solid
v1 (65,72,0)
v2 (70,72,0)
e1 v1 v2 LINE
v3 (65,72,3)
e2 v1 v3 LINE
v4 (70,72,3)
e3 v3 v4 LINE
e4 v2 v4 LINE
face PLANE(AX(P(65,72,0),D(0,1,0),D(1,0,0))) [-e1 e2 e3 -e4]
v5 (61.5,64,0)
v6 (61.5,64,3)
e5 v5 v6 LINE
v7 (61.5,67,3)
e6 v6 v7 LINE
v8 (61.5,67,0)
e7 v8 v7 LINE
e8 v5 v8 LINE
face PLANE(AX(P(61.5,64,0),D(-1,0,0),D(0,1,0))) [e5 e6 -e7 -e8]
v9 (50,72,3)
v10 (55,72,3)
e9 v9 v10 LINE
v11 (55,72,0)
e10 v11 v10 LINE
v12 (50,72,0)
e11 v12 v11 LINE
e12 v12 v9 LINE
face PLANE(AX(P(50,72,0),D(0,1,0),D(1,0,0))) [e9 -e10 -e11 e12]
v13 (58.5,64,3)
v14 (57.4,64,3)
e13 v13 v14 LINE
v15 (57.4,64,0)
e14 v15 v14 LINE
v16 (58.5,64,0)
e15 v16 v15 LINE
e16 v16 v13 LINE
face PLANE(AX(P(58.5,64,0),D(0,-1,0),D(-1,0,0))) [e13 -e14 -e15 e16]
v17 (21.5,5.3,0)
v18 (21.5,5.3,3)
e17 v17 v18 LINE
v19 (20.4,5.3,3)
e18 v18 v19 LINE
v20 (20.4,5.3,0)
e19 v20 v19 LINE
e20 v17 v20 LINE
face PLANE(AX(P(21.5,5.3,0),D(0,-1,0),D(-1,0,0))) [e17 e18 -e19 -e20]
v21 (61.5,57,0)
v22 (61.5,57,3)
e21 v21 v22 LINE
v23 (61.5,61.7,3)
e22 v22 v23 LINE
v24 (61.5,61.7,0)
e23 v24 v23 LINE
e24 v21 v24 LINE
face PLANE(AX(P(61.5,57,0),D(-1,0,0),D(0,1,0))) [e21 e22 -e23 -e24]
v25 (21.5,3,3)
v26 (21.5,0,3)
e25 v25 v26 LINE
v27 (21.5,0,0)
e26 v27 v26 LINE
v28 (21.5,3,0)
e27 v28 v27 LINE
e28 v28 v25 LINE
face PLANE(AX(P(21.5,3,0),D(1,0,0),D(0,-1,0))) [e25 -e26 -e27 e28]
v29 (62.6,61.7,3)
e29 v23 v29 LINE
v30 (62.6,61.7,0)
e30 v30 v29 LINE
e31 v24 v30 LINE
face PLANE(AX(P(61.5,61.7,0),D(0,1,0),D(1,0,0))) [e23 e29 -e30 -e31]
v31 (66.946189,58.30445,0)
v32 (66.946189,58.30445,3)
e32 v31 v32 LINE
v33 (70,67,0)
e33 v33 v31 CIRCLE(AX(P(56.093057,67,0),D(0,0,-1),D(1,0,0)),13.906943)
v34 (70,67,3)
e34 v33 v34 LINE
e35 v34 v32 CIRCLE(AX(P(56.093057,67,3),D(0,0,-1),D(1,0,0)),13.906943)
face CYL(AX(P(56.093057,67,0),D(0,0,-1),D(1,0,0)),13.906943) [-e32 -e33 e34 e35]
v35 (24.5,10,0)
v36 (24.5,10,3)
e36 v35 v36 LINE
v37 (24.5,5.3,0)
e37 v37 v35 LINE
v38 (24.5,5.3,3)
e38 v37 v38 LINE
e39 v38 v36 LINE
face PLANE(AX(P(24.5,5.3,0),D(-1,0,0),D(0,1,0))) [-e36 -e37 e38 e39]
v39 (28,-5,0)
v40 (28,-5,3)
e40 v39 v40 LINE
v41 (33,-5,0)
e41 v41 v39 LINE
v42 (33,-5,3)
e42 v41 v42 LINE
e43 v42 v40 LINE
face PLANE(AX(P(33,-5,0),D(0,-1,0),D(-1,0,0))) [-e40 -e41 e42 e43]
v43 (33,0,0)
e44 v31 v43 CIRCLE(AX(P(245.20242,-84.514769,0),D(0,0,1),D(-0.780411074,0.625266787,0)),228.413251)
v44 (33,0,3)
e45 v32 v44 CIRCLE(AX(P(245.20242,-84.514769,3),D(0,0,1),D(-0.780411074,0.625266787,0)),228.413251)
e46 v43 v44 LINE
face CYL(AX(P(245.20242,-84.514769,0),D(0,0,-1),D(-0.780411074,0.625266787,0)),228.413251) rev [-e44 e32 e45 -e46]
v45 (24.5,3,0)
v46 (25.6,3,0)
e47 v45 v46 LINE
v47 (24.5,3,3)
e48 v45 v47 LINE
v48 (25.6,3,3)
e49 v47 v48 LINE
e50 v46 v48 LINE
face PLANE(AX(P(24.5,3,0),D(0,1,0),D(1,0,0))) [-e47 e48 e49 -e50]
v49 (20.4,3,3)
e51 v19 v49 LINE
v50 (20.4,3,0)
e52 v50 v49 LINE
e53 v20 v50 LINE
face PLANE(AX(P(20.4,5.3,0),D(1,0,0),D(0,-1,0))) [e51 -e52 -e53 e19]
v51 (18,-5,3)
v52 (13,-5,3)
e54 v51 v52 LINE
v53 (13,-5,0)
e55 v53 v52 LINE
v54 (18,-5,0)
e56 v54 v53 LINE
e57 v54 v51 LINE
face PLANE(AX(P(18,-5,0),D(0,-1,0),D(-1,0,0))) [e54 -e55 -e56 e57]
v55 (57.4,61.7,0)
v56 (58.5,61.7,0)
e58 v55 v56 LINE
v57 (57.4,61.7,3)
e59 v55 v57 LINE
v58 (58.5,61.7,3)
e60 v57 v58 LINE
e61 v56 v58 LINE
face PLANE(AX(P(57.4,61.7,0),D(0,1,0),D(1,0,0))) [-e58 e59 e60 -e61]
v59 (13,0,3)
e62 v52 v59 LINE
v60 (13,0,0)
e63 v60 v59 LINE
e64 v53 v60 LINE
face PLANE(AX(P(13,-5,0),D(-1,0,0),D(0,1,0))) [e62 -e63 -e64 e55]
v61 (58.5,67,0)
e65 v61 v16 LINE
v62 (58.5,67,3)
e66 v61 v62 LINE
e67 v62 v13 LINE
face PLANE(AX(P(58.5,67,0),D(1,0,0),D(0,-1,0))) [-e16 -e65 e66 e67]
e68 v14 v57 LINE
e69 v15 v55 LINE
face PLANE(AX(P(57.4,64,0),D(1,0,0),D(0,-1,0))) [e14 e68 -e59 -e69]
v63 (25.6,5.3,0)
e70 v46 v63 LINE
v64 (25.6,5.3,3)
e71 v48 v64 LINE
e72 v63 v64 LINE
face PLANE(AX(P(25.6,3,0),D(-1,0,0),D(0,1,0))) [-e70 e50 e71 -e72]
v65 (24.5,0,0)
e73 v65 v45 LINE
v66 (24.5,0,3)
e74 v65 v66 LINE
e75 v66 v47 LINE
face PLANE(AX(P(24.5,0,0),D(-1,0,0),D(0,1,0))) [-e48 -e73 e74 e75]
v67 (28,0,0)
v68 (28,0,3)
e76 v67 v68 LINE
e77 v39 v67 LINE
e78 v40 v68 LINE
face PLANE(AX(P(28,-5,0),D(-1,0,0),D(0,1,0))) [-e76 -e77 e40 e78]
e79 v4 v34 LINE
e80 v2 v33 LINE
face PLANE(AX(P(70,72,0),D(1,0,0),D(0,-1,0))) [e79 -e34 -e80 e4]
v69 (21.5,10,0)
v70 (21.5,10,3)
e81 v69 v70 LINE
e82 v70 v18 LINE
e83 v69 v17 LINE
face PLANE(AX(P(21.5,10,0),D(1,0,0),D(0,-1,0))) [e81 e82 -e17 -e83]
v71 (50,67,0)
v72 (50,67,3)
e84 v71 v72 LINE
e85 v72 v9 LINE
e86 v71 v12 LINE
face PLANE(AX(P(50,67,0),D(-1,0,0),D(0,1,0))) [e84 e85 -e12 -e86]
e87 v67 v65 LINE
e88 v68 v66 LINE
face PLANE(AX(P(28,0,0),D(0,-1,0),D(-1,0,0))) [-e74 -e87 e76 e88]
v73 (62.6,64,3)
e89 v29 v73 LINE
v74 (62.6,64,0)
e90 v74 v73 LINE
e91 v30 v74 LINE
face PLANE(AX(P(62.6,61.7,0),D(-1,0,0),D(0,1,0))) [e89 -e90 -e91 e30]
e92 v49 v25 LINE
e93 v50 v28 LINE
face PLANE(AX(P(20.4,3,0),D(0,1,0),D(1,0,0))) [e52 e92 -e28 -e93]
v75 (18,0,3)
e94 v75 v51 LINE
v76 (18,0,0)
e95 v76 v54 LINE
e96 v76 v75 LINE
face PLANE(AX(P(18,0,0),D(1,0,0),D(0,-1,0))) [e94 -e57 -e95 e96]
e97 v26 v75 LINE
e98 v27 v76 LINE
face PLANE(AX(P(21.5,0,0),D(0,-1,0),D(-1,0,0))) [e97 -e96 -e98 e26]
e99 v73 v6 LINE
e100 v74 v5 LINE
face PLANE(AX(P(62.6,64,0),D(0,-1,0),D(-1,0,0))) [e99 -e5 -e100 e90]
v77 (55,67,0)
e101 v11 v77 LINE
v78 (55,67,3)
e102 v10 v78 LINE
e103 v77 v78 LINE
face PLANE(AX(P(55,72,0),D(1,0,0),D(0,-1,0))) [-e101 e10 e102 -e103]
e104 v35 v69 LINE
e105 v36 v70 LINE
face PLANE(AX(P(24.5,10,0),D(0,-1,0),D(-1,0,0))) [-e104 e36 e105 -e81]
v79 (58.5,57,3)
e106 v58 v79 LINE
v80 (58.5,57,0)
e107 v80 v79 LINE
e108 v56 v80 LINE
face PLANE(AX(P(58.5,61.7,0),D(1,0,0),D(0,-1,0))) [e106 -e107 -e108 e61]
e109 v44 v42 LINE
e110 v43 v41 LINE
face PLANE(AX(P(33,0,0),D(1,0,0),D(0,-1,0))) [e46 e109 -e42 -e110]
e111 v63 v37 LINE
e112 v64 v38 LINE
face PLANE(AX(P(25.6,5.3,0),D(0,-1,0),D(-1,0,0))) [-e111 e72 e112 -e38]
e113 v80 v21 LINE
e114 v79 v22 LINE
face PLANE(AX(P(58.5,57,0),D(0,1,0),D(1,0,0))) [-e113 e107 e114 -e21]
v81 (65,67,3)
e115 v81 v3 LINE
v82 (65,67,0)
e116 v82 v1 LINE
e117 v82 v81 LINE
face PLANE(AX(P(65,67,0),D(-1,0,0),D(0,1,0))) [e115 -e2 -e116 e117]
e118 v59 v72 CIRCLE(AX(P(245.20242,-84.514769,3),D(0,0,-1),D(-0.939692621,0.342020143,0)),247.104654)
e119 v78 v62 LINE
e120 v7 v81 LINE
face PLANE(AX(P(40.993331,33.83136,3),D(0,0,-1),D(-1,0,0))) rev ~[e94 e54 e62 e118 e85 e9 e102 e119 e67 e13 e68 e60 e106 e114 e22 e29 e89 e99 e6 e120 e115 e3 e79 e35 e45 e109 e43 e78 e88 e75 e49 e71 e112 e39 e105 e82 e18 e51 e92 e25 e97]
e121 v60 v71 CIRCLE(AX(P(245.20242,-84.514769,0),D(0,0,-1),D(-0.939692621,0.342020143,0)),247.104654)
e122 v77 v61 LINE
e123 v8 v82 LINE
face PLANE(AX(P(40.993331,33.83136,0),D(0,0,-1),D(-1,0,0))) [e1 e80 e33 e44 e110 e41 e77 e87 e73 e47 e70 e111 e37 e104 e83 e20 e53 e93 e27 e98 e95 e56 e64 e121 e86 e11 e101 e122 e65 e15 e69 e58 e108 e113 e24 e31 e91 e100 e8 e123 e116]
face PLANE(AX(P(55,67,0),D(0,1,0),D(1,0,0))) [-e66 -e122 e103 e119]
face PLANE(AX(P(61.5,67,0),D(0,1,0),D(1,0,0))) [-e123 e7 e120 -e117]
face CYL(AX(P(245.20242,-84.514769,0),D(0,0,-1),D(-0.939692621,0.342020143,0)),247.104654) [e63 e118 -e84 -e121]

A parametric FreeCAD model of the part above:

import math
import FreeCAD as App
import Part
import Sketcher

V = App.Vector
Q = App.Units.Quantity

doc = App.newDocument("Part")
body = doc.addObject("PartDesign::Body", "Body")

sketch1 = body.newObject("Sketcher::SketchObject", "Sketch")
sketch1.AttachmentSupport = (doc.getObject("XY_Plane"), [""])
sketch1.MapMode = "FlatFace"
sketch1.addGeometry([
    Part.LineSegment(V(65, 67, 0), V(61.5, 67, 0)),
    Part.LineSegment(V(61.5, 67, 0), V(61.5, 64, 0)),
    Part.LineSegment(V(61.5, 64, 0), V(62.6, 64, 0)),
    Part.LineSegment(V(62.6, 64, 0), V(62.6, 61.7, 0)),
    Part.LineSegment(V(62.6, 61.7, 0), V(61.5, 61.7, 0)),
    Part.LineSegment(V(61.5, 61.7, 0), V(61.5, 57, 0)),
    Part.LineSegment(V(61.5, 57, 0), V(58.5, 57, 0)),
    Part.LineSegment(V(58.5, 57, 0), V(58.5, 61.7, 0)),
    Part.LineSegment(V(58.5, 61.7, 0), V(57.4, 61.7, 0)),
    Part.LineSegment(V(57.4, 61.7, 0), V(57.4, 64, 0)),
    Part.LineSegment(V(57.4, 64, 0), V(58.5, 64, 0)),
    Part.LineSegment(V(58.5, 64, 0), V(58.5, 67, 0)),
    Part.LineSegment(V(58.5, 67, 0), V(55, 67, 0)),
    Part.LineSegment(V(55, 67, 0), V(55, 72, 0)),
    Part.LineSegment(V(55, 72, 0), V(50, 72, 0)),
    Part.LineSegment(V(50, 72, 0), V(50, 67, 0)),
    Part.ArcOfCircle(Part.Circle(V(245.2, -84.5, 0), V(0, 0, 1), 247.1), math.radians(142.18), math.radians(160)),
    Part.LineSegment(V(13, 0, 0), V(13, -5, 0)),
    Part.LineSegment(V(13, -5, 0), V(18, -5, 0)),
    Part.LineSegment(V(18, -5, 0), V(18, 0, 0)),
    Part.LineSegment(V(18, 0, 0), V(21.5, 0, 0)),
    Part.LineSegment(V(21.5, 0, 0), V(21.5, 3, 0)),
    Part.LineSegment(V(21.5, 3, 0), V(20.4, 3, 0)),
    Part.LineSegment(V(20.4, 3, 0), V(20.4, 5.3, 0)),
    Part.LineSegment(V(20.4, 5.3, 0), V(21.5, 5.3, 0)),
    Part.LineSegment(V(21.5, 5.3, 0), V(21.5, 10, 0)),
    Part.LineSegment(V(21.5, 10, 0), V(24.5, 10, 0)),
    Part.LineSegment(V(24.5, 10, 0), V(24.5, 5.3, 0)),
    Part.LineSegment(V(24.5, 5.3, 0), V(25.6, 5.3, 0)),
    Part.LineSegment(V(25.6, 5.3, 0), V(25.6, 3, 0)),
    Part.LineSegment(V(25.6, 3, 0), V(24.5, 3, 0)),
    Part.LineSegment(V(24.5, 3, 0), V(24.5, 0, 0)),
    Part.LineSegment(V(24.5, 0, 0), V(28, 0, 0)),
    Part.LineSegment(V(28, 0, 0), V(28, -5, 0)),
    Part.LineSegment(V(28, -5, 0), V(33, -5, 0)),
    Part.LineSegment(V(33, -5, 0), V(33, 0, 0)),
    Part.ArcOfCircle(Part.Circle(V(245.2, -84.5, 0), V(0, 0, 1), 228.4), math.radians(141.3), math.radians(158.28)),
    Part.ArcOfCircle(Part.Circle(V(56.1, 67, 0), V(0, 0, 1), 13.9), math.radians(-39), math.radians(0)),
    Part.LineSegment(V(70, 67, 0), V(70, 72, 0)),
    Part.LineSegment(V(70, 72, 0), V(65, 72, 0)),
    Part.LineSegment(V(65, 72, 0), V(65, 67, 0)),
], False)
sketch1.addConstraint([
    Sketcher.Constraint("Coincident", 0, 2, 1, 1),
    Sketcher.Constraint("Coincident", 1, 2, 2, 1),
    Sketcher.Constraint("Coincident", 2, 2, 3, 1),
    Sketcher.Constraint("Coincident", 3, 2, 4, 1),
    Sketcher.Constraint("Coincident", 4, 2, 5, 1),
    Sketcher.Constraint("Coincident", 5, 2, 6, 1),
    Sketcher.Constraint("Coincident", 6, 2, 7, 1),
    Sketcher.Constraint("Coincident", 7, 2, 8, 1),
    Sketcher.Constraint("Coincident", 8, 2, 9, 1),
    Sketcher.Constraint("Coincident", 9, 2, 10, 1),
    Sketcher.Constraint("Coincident", 10, 2, 11, 1),
    Sketcher.Constraint("Coincident", 11, 2, 12, 1),
    Sketcher.Constraint("Coincident", 12, 2, 13, 1),
    Sketcher.Constraint("Coincident", 13, 2, 14, 1),
    Sketcher.Constraint("Coincident", 14, 2, 15, 1),
    Sketcher.Constraint("Coincident", 15, 2, 16, 1),
    Sketcher.Constraint("Coincident", 16, 2, 17, 1),
    Sketcher.Constraint("Coincident", 17, 2, 18, 1),
    Sketcher.Constraint("Coincident", 18, 2, 19, 1),
    Sketcher.Constraint("Coincident", 19, 2, 20, 1),
    Sketcher.Constraint("Coincident", 20, 2, 21, 1),
    Sketcher.Constraint("Coincident", 21, 2, 22, 1),
    Sketcher.Constraint("Coincident", 22, 2, 23, 1),
    Sketcher.Constraint("Coincident", 23, 2, 24, 1),
    Sketcher.Constraint("Coincident", 24, 2, 25, 1),
    Sketcher.Constraint("Coincident", 25, 2, 26, 1),
    Sketcher.Constraint("Coincident", 26, 2, 27, 1),
    Sketcher.Constraint("Coincident", 27, 2, 28, 1),
    Sketcher.Constraint("Coincident", 28, 2, 29, 1),
    Sketcher.Constraint("Coincident", 29, 2, 30, 1),
    Sketcher.Constraint("Coincident", 30, 2, 31, 1),
    Sketcher.Constraint("Coincident", 31, 2, 32, 1),
    Sketcher.Constraint("Coincident", 32, 2, 33, 1),
    Sketcher.Constraint("Coincident", 33, 2, 34, 1),
    Sketcher.Constraint("Coincident", 34, 2, 35, 1),
    Sketcher.Constraint("Coincident", 35, 2, 36, 2),
    Sketcher.Constraint("Tangent", 36, 1, 37, 1),
    Sketcher.Constraint("Tangent", 37, 2, 38, 1),
    Sketcher.Constraint("Coincident", 38, 2, 39, 1),
    Sketcher.Constraint("Coincident", 39, 2, 40, 1),
    Sketcher.Constraint("Coincident", 40, 2, 0, 1),
    Sketcher.Constraint("Horizontal", 0),
    Sketcher.Constraint("Vertical", 1),
    Sketcher.Constraint("Horizontal", 2),
    Sketcher.Constraint("Vertical", 3),
    Sketcher.Constraint("Horizontal", 4),
    Sketcher.Constraint("Vertical", 5),
    Sketcher.Constraint("Horizontal", 6),
    Sketcher.Constraint("Vertical", 7),
    Sketcher.Constraint("Horizontal", 8),
    Sketcher.Constraint("Vertical", 9),
    Sketcher.Constraint("Horizontal", 10),
    Sketcher.Constraint("Vertical", 11),
    Sketcher.Constraint("Horizontal", 12),
    Sketcher.Constraint("Vertical", 13),
    Sketcher.Constraint("Horizontal", 14),
    Sketcher.Constraint("Vertical", 15),
    Sketcher.Constraint("Vertical", 17),
    Sketcher.Constraint("Horizontal", 18),
    Sketcher.Constraint("Vertical", 19),
    Sketcher.Constraint("Horizontal", 20),
    Sketcher.Constraint("Vertical", 21),
    Sketcher.Constraint("Horizontal", 22),
    Sketcher.Constraint("Vertical", 23),
    Sketcher.Constraint("Horizontal", 24),
    Sketcher.Constraint("Vertical", 25),
    Sketcher.Constraint("Horizontal", 26),
    Sketcher.Constraint("Vertical", 27),
    Sketcher.Constraint("Horizontal", 28),
    Sketcher.Constraint("Vertical", 29),
    Sketcher.Constraint("Horizontal", 30),
    Sketcher.Constraint("Vertical", 31),
    Sketcher.Constraint("Horizontal", 32),
    Sketcher.Constraint("Vertical", 33),
    Sketcher.Constraint("Horizontal", 34),
    Sketcher.Constraint("Vertical", 35),
    Sketcher.Constraint("Vertical", 38),
    Sketcher.Constraint("Horizontal", 39),
    Sketcher.Constraint("Vertical", 40),
    Sketcher.Constraint("Coincident", 36, 3, 16, 3),
    Sketcher.Constraint("PointOnObject", 16, 2, -1),
    Sketcher.Constraint("PointOnObject", 19, 2, -1),
    Sketcher.Constraint("PointOnObject", 31, 2, -1),
    Sketcher.Constraint("PointOnObject", 35, 2, -1),
    Sketcher.Constraint("Horizontal", 37, 3, 0, 2),
    Sketcher.Constraint("Horizontal", 4, 2, 7, 2),
    Sketcher.Constraint("Horizontal", 2, 2, 9, 2),
    Sketcher.Constraint("Horizontal", 0, 2, 11, 2),
    Sketcher.Constraint("Horizontal", 12, 2, 15, 2),
    Sketcher.Constraint("Horizontal", 24, 2, 27, 2),
    Sketcher.Constraint("Horizontal", 22, 2, 29, 2),
    Sketcher.Constraint("Horizontal", 18, 2, 33, 2),
    Sketcher.Constraint("Horizontal", 14, 2, 38, 2),
    Sketcher.Constraint("Vertical", 1, 2, 4, 2),
    Sketcher.Constraint("Vertical", 7, 2, 10, 2),
    Sketcher.Constraint("Vertical", 21, 2, 24, 2),
    Sketcher.Constraint("Vertical", 27, 2, 30, 2),
    Sketcher.Constraint("Equal", 4, 8),
    Sketcher.Constraint("Equal", 0, 12),
    Sketcher.Constraint("Equal", 14, 18),
    Sketcher.Constraint("Equal", 12, 20),
    Sketcher.Constraint("Equal", 10, 22),
    Sketcher.Constraint("Equal", 6, 26),
    Sketcher.Constraint("Equal", 24, 28),
    Sketcher.Constraint("Equal", 20, 32),
    Sketcher.Constraint("Equal", 18, 34),
    Sketcher.Constraint("Equal", 34, 39),
    Sketcher.Constraint("Equal", 26, 1),
    Sketcher.Constraint("Equal", 39, 13),
    Sketcher.Constraint("Equal", 15, 17),
    Sketcher.Constraint("Equal", 11, 21),
    Sketcher.Constraint("Equal", 9, 23),
    Sketcher.Constraint("Equal", 7, 25),
    Sketcher.Constraint("DistanceX", 6, 2, 6, 1, Q("3 mm")),
    Sketcher.Constraint("DistanceX", 14, 2, 14, 1, Q("5 mm")),
    Sketcher.Constraint("DistanceX", 0, 2, 0, 1, Q("3.5 mm")),
    Sketcher.Constraint("DistanceX", 2, 1, 2, 2, Q("1.1 mm")),
    Sketcher.Constraint("DistanceY", 3, 2, 3, 1, Q("2.3 mm")),
    Sketcher.Constraint("DistanceY", 5, 2, 5, 1, Q("4.7 mm")),
    Sketcher.Constraint("DistanceY", -1, 1, 37, 3, Q("67 mm")),
    Sketcher.Constraint("DistanceX", -1, 1, 12, 2, Q("55 mm")),
    Sketcher.Constraint("DistanceX", -1, 1, 17, 2, Q("13 mm")),
    Sketcher.Constraint("Radius", 36, Q("228.413251 mm")),
])
pad1 = body.newObject("PartDesign::Pad", "Pad")
pad1.Profile = sketch1
pad1.Length = 3

doc.recompute()
